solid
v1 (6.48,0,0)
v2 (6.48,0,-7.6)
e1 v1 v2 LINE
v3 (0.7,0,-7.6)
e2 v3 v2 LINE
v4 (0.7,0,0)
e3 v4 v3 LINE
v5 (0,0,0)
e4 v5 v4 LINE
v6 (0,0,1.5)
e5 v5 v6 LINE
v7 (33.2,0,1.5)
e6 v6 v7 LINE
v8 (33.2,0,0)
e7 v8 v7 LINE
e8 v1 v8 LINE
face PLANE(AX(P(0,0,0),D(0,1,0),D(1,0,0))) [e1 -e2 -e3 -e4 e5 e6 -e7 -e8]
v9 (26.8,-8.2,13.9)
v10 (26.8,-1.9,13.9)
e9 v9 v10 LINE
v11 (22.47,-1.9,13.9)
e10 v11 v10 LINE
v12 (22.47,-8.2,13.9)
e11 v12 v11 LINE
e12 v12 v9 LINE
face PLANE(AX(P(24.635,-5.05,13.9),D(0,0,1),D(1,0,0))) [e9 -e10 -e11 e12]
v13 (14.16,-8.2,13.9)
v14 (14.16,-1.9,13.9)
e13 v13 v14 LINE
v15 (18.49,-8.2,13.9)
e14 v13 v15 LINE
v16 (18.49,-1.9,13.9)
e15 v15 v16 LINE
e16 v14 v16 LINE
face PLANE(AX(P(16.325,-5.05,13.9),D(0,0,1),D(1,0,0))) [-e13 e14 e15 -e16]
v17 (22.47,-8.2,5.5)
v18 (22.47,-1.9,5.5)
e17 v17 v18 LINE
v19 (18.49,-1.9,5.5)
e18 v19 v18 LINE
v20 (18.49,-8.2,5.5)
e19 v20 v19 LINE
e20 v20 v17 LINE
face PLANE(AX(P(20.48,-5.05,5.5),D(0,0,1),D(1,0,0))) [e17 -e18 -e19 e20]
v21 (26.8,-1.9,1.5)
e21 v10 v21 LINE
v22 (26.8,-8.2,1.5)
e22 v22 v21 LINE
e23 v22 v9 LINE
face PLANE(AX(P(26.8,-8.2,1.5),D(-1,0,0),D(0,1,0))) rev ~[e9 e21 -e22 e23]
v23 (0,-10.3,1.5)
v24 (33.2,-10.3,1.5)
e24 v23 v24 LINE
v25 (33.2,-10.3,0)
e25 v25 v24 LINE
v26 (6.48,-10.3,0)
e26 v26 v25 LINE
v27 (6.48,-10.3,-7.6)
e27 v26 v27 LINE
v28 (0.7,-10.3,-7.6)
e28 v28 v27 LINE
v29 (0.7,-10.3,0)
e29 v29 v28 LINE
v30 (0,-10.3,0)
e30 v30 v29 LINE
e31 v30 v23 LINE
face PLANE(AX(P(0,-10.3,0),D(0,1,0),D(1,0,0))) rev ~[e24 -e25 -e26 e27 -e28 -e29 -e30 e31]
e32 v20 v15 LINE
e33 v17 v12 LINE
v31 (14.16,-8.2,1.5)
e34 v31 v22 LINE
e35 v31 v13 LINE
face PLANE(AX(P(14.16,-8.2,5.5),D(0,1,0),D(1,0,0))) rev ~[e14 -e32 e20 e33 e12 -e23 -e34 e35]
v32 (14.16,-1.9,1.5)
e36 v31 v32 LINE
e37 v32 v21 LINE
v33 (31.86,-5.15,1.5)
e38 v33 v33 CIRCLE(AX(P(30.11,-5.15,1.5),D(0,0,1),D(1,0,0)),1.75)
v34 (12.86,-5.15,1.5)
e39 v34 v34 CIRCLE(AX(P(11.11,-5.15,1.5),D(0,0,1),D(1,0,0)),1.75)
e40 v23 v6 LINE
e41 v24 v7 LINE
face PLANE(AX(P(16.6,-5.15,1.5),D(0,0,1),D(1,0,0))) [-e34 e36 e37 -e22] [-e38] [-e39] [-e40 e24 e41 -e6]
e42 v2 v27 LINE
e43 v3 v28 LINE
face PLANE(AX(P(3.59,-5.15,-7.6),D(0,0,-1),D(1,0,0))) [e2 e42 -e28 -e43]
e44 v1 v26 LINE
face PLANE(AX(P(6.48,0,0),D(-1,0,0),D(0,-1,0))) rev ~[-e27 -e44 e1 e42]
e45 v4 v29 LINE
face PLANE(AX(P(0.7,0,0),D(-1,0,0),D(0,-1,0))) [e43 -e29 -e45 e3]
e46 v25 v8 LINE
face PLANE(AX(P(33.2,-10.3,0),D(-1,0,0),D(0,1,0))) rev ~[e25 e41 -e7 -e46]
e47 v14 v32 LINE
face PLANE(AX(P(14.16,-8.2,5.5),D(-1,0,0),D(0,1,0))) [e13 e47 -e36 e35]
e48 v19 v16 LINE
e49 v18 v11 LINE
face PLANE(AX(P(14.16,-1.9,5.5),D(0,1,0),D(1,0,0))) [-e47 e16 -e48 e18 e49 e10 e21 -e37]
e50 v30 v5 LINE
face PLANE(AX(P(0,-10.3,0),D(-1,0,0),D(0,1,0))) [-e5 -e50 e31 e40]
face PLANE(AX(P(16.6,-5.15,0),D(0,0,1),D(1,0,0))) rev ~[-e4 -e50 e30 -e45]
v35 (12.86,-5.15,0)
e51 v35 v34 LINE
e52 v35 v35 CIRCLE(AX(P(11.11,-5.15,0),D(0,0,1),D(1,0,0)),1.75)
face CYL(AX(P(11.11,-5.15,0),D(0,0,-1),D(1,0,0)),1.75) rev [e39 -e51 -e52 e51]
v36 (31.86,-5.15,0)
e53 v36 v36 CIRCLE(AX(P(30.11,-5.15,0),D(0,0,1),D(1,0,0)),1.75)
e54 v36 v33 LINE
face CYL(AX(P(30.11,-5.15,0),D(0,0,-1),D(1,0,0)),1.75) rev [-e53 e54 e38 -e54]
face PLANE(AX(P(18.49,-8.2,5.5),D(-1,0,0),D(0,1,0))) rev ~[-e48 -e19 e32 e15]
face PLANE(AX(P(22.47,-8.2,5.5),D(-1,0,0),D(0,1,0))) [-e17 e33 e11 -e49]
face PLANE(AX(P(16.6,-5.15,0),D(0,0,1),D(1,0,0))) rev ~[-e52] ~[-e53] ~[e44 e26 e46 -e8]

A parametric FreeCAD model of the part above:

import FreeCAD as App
import Part
import Sketcher

V = App.Vector
Q = App.Units.Quantity

doc = App.newDocument("Part")
body = doc.addObject("PartDesign::Body", "Body")

# Sketch on XY plane
sketch1 = body.newObject("Sketcher::SketchObject", "Sketch")
sketch1.AttachmentSupport = (doc.getObject("XY_Plane"), [""])
sketch1.MapMode = "FlatFace"
sketch1.addGeometry(Part.LineSegment(V(0, 0, 0), V(0, -10.3, 0)), False)
sketch1.addGeometry(Part.LineSegment(V(0, -10.3, 0), V(33.2, -10.3, 0)), False)
sketch1.addGeometry(Part.LineSegment(V(33.2, -10.3, 0), V(33.2, 0, 0)), False)
sketch1.addGeometry(Part.LineSegment(V(33.2, 0, 0), V(0, 0, 0)), False)
sketch1.addGeometry(Part.Circle(V(11.11, -5.15, 0), V(0, 0, 1), 1.75), False)
sketch1.addGeometry(Part.Circle(V(30.11, -5.15, 0), V(0, 0, 1), 1.75), False)
sketch1.addConstraint(Sketcher.Constraint("Coincident", 0, 2, 1, 1))
sketch1.addConstraint(Sketcher.Constraint("Coincident", 1, 2, 2, 1))
sketch1.addConstraint(Sketcher.Constraint("Coincident", 2, 2, 3, 1))
sketch1.addConstraint(Sketcher.Constraint("Coincident", 3, 2, 0, 1))
sketch1.addConstraint(Sketcher.Constraint("Vertical", 0))
sketch1.addConstraint(Sketcher.Constraint("Horizontal", 1))
sketch1.addConstraint(Sketcher.Constraint("Vertical", 2))
sketch1.addConstraint(Sketcher.Constraint("Horizontal", 3))
sketch1.addConstraint(Sketcher.Constraint("Coincident", 3, 2, -1, 1))
sketch1.addConstraint(Sketcher.Constraint("Equal", 4, 5))
sketch1.addConstraint(Sketcher.Constraint("Horizontal", 4, 3, 5, 3))
sketch1.addConstraint(Sketcher.Constraint("Diameter", 4, Q("3.5 mm")))
sketch1.addConstraint(Sketcher.Constraint("DistanceX", 1, 1, 1, 2, Q("33.2 mm")))
sketch1.addConstraint(Sketcher.Constraint("DistanceY", 0, 2, 0, 1, Q("10.3 mm")))
sketch1.addConstraint(Sketcher.Constraint("DistanceX", 4, 3, 5, 3, Q("19 mm")))
sketch1.addConstraint(Sketcher.Constraint("DistanceX", -1, 1, 4, 3, Q("11.11 mm")))
sketch1.addConstraint(Sketcher.Constraint("DistanceY", 4, 3, -1, 1, Q("5.15 mm")))
pad1 = body.newObject("PartDesign::Pad", "Pad")
pad1.Profile = sketch1
pad1.Length = 1.5

# Sketch on XY plane
sketch2 = body.newObject("Sketcher::SketchObject", "Sketch001")
sketch2.AttachmentSupport = (doc.getObject("XY_Plane"), [""])
sketch2.MapMode = "FlatFace"
sketch2.AttachmentOffset = App.Placement(V(0, 0, 1.5), App.Rotation())
sketch2.addGeometry(Part.LineSegment(V(14.16, -1.9, 0), V(14.16, -8.2, 0)), False)
sketch2.addGeometry(Part.LineSegment(V(14.16, -8.2, 0), V(26.8, -8.2, 0)), False)
sketch2.addGeometry(Part.LineSegment(V(26.8, -8.2, 0), V(26.8, -1.9, 0)), False)
sketch2.addGeometry(Part.LineSegment(V(26.8, -1.9, 0), V(14.16, -1.9, 0)), False)
sketch2.addConstraint(Sketcher.Constraint("Coincident", 0, 2, 1, 1))
sketch2.addConstraint(Sketcher.Constraint("Coincident", 1, 2, 2, 1))
sketch2.addConstraint(Sketcher.Constraint("Coincident", 2, 2, 3, 1))
sketch2.addConstraint(Sketcher.Constraint("Coincident", 3, 2, 0, 1))
sketch2.addConstraint(Sketcher.Constraint("Vertical", 0))
sketch2.addConstraint(Sketcher.Constraint("Horizontal", 1))
sketch2.addConstraint(Sketcher.Constraint("Vertical", 2))
sketch2.addConstraint(Sketcher.Constraint("Horizontal", 3))
sketch2.addConstraint(Sketcher.Constraint("DistanceY", 0, 2, 0, 1, Q("6.3 mm")))
sketch2.addConstraint(Sketcher.Constraint("DistanceX", 1, 1, 1, 2, Q("12.64 mm")))
sketch2.addConstraint(Sketcher.Constraint("DistanceY", 0, 2, -1, 1, Q("8.2 mm")))
sketch2.addConstraint(Sketcher.Constraint("DistanceX", -1, 1, 1, 2, Q("26.8 mm")))
pad2 = body.newObject("PartDesign::Pad", "Pad001")
pad2.Profile = sketch2
pad2.Length = 4

# Sketch on XY plane
sketch3 = body.newObject("Sketcher::SketchObject", "Sketch002")
sketch3.AttachmentSupport = (doc.getObject("XY_Plane"), [""])
sketch3.MapMode = "FlatFace"
sketch3.AttachmentOffset = App.Placement(V(0, 0, 5.5), App.Rotation())
sketch3.addGeometry(Part.LineSegment(V(14.16, -1.9, 0), V(14.16, -8.2, 0)), False)
sketch3.addGeometry(Part.LineSegment(V(14.16, -8.2, 0), V(18.49, -8.2, 0)), False)
sketch3.addGeometry(Part.LineSegment(V(18.49, -8.2, 0), V(18.49, -1.9, 0)), False)
sketch3.addGeometry(Part.LineSegment(V(18.49, -1.9, 0), V(14.16, -1.9, 0)), False)
sketch3.addGeometry(Part.LineSegment(V(22.47, -1.9, 0), V(22.47, -8.2, 0)), False)
sketch3.addGeometry(Part.LineSegment(V(22.47, -8.2, 0), V(26.8, -8.2, 0)), False)
sketch3.addGeometry(Part.LineSegment(V(26.8, -8.2, 0), V(26.8, -1.9, 0)), False)
sketch3.addGeometry(Part.LineSegment(V(26.8, -1.9, 0), V(22.47, -1.9, 0)), False)
sketch3.addConstraint(Sketcher.Constraint("Coincident", 0, 2, 1, 1))
sketch3.addConstraint(Sketcher.Constraint("Coincident", 1, 2, 2, 1))
sketch3.addConstraint(Sketcher.Constraint("Coincident", 2, 2, 3, 1))
sketch3.addConstraint(Sketcher.Constraint("Coincident", 3, 2, 0, 1))
sketch3.addConstraint(Sketcher.Constraint("Coincident", 4, 2, 5, 1))
sketch3.addConstraint(Sketcher.Constraint("Coincident", 5, 2, 6, 1))
sketch3.addConstraint(Sketcher.Constraint("Coincident", 6, 2, 7, 1))
sketch3.addConstraint(Sketcher.Constraint("Coincident", 7, 2, 4, 1))
sketch3.addConstraint(Sketcher.Constraint("Vertical", 0))
sketch3.addConstraint(Sketcher.Constraint("Horizontal", 1))
sketch3.addConstraint(Sketcher.Constraint("Vertical", 2))
sketch3.addConstraint(Sketcher.Constraint("Horizontal", 3))
sketch3.addConstraint(Sketcher.Constraint("Vertical", 4))
sketch3.addConstraint(Sketcher.Constraint("Horizontal", 5))
sketch3.addConstraint(Sketcher.Constraint("Vertical", 6))
sketch3.addConstraint(Sketcher.Constraint("Horizontal", 7))
sketch3.addConstraint(Sketcher.Constraint("Horizontal", 1, 2, 4, 2))
sketch3.addConstraint(Sketcher.Constraint("Horizontal", 3, 2, 6, 2))
sketch3.addConstraint(Sketcher.Constraint("Equal", 3, 5))
sketch3.addConstraint(Sketcher.Constraint("DistanceY", 0, 2, 0, 1, Q("6.3 mm")))
sketch3.addConstraint(Sketcher.Constraint("DistanceX", 1, 1, 1, 2, Q("4.33 mm")))
sketch3.addConstraint(Sketcher.Constraint("DistanceY", 0, 2, -1, 1, Q("8.2 mm")))
sketch3.addConstraint(Sketcher.Constraint("DistanceX", -1, 1, 5, 2, Q("26.8 mm")))
sketch3.addConstraint(Sketcher.Constraint("DistanceX", -1, 1, 0, 2, Q("14.16 mm")))
pad3 = body.newObject("PartDesign::Pad", "Pad002")
pad3.Profile = sketch3
pad3.Length = 8.4

# Sketch on XY plane
sketch4 = body.newObject("Sketcher::SketchObject", "Sketch003")
sketch4.AttachmentSupport = (doc.getObject("XY_Plane"), [""])
sketch4.MapMode = "FlatFace"
sketch4.addGeometry(Part.LineSegment(V(0.7, -10.3, 0), V(0.7, 0, 0)), False)
sketch4.addGeometry(Part.LineSegment(V(0.7, 0, 0), V(6.48, 0, 0)), False)
sketch4.addGeometry(Part.LineSegment(V(6.48, 0, 0), V(6.48, -10.3, 0)), False)
sketch4.addGeometry(Part.LineSegment(V(6.48, -10.3, 0), V(0.7, -10.3, 0)), False)
sketch4.addConstraint(Sketcher.Constraint("Coincident", 0, 2, 1, 1))
sketch4.addConstraint(Sketcher.Constraint("Coincident", 1, 2, 2, 1))
sketch4.addConstraint(Sketcher.Constraint("Coincident", 2, 2, 3, 1))
sketch4.addConstraint(Sketcher.Constraint("Coincident", 3, 2, 0, 1))
sketch4.addConstraint(Sketcher.Constraint("Vertical", 0))
sketch4.addConstraint(Sketcher.Constraint("Horizontal", 1))
sketch4.addConstraint(Sketcher.Constraint("Vertical", 2))
sketch4.addConstraint(Sketcher.Constraint("Horizontal", 3))
sketch4.addConstraint(Sketcher.Constraint("PointOnObject", 0, 2, -1))
sketch4.addConstraint(Sketcher.Constraint("DistanceY", 0, 1, 0, 2, Q("10.3 mm")))
sketch4.addConstraint(Sketcher.Constraint("DistanceX", 1, 1, 1, 2, Q("5.78 mm")))
sketch4.addConstraint(Sketcher.Constraint("DistanceX", -1, 1, 0, 2, Q("0.7 mm")))
pad4 = body.newObject("PartDesign::Pad", "Pad003")
pad4.Profile = sketch4
pad4.Length = 7.6
pad4.Reversed = True

doc.recompute()
